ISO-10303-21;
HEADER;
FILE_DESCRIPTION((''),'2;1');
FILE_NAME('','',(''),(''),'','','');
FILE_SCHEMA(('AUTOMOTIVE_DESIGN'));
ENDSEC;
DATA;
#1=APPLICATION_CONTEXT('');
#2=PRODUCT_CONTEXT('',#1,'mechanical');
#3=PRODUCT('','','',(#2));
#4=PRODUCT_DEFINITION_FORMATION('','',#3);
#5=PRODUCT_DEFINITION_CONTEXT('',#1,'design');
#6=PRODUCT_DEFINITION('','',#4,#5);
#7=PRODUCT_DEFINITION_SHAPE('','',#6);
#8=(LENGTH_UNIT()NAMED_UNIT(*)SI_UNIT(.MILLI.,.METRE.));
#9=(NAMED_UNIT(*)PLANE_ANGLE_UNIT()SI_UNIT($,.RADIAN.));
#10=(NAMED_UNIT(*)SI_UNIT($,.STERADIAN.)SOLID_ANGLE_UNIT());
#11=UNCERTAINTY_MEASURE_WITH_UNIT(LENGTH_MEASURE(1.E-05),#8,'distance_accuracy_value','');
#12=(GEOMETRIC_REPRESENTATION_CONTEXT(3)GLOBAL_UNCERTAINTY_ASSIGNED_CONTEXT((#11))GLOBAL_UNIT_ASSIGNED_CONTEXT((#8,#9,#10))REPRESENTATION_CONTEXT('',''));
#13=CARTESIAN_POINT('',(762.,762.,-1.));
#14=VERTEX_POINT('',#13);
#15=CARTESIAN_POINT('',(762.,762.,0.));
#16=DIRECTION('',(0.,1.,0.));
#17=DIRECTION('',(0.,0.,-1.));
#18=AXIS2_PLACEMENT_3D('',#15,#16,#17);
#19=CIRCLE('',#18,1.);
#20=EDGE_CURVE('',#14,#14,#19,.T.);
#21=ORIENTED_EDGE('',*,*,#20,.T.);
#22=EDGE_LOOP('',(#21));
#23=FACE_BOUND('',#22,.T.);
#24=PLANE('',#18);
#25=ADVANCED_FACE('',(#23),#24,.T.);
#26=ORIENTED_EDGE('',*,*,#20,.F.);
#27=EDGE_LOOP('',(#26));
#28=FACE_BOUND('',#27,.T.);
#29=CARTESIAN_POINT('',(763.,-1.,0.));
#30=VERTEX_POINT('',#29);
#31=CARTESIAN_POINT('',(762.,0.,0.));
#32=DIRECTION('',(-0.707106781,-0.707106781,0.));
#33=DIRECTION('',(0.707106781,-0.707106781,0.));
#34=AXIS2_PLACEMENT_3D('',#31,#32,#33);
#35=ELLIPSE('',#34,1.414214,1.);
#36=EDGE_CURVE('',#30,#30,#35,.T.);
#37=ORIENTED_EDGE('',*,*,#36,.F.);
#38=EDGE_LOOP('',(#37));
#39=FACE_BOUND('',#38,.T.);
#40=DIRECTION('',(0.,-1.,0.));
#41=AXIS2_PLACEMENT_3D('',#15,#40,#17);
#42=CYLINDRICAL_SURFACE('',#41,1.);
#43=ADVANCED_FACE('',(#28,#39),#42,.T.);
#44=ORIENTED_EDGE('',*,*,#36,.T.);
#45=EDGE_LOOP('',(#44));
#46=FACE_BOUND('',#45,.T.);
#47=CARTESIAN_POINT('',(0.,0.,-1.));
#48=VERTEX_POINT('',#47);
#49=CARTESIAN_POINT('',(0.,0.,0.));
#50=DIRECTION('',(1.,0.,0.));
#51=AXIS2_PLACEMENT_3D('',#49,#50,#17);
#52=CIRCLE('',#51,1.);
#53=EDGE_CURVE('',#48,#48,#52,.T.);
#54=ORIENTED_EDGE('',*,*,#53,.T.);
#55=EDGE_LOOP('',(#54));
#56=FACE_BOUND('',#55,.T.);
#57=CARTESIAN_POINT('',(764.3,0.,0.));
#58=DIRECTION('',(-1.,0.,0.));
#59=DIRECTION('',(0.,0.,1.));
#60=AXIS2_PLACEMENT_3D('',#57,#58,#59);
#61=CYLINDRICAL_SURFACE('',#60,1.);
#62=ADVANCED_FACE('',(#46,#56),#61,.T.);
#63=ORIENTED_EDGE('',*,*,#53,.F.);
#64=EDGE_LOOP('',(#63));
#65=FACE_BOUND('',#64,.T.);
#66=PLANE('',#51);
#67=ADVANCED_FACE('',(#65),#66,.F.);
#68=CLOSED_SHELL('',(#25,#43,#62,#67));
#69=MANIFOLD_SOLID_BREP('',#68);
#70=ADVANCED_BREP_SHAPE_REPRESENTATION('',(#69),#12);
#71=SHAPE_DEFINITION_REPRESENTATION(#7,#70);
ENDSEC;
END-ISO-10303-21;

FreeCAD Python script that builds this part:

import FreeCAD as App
import Part
import Sketcher
from FreeCAD import Vector
Q = App.Units.Quantity

doc = App.newDocument("Part")
body = doc.addObject("PartDesign::Body", "Body")

# Sketch on YZ plane
sketch1 = doc.addObject("Sketcher::SketchObject", "Sketch")
body.addObject(sketch1)
sketch1.AttachmentSupport = (doc.YZ_Plane, [""])
sketch1.MapMode = "FlatFace"
sketch1.addGeometry(Part.Circle(Vector(0, 0, 0), Vector(0, 0, 1), 1), False)
sketch1.addConstraint(Sketcher.Constraint("Coincident", 0, 3, -1, 1))
sketch1.addConstraint(Sketcher.Constraint("Diameter", 0, Q("2 mm")))

# Sketch on XY plane
sketch2 = doc.addObject("Sketcher::SketchObject", "Sketch001")
body.addObject(sketch2)
sketch2.AttachmentSupport = (doc.XY_Plane, [""])
sketch2.MapMode = "FlatFace"
sketch2.addGeometry(Part.LineSegment(Vector(0, 0, 0), Vector(762, 0, 0)), False)
sketch2.addGeometry(Part.LineSegment(Vector(762, 0, 0), Vector(762, 762, 0)), False)
sketch2.addConstraint(Sketcher.Constraint("Coincident", 0, 2, 1, 1))
sketch2.addConstraint(Sketcher.Constraint("Horizontal", 0))
sketch2.addConstraint(Sketcher.Constraint("Vertical", 1))
sketch2.addConstraint(Sketcher.Constraint("Coincident", 0, 1, -1, 1))
sketch2.addConstraint(Sketcher.Constraint("Equal", 0, 1))
sketch2.addConstraint(Sketcher.Constraint("DistanceX", 0, 1, 0, 2, Q("762 mm")))
doc.recompute()

additivepipe = doc.addObject("PartDesign::AdditivePipe", "AdditivePipe")
body.addObject(additivepipe)
additivepipe.Profile = sketch1
additivepipe.Spine = (sketch2, ["Edge1", "Edge2"])
additivepipe.Transition = "Right corner"

doc.recompute()
